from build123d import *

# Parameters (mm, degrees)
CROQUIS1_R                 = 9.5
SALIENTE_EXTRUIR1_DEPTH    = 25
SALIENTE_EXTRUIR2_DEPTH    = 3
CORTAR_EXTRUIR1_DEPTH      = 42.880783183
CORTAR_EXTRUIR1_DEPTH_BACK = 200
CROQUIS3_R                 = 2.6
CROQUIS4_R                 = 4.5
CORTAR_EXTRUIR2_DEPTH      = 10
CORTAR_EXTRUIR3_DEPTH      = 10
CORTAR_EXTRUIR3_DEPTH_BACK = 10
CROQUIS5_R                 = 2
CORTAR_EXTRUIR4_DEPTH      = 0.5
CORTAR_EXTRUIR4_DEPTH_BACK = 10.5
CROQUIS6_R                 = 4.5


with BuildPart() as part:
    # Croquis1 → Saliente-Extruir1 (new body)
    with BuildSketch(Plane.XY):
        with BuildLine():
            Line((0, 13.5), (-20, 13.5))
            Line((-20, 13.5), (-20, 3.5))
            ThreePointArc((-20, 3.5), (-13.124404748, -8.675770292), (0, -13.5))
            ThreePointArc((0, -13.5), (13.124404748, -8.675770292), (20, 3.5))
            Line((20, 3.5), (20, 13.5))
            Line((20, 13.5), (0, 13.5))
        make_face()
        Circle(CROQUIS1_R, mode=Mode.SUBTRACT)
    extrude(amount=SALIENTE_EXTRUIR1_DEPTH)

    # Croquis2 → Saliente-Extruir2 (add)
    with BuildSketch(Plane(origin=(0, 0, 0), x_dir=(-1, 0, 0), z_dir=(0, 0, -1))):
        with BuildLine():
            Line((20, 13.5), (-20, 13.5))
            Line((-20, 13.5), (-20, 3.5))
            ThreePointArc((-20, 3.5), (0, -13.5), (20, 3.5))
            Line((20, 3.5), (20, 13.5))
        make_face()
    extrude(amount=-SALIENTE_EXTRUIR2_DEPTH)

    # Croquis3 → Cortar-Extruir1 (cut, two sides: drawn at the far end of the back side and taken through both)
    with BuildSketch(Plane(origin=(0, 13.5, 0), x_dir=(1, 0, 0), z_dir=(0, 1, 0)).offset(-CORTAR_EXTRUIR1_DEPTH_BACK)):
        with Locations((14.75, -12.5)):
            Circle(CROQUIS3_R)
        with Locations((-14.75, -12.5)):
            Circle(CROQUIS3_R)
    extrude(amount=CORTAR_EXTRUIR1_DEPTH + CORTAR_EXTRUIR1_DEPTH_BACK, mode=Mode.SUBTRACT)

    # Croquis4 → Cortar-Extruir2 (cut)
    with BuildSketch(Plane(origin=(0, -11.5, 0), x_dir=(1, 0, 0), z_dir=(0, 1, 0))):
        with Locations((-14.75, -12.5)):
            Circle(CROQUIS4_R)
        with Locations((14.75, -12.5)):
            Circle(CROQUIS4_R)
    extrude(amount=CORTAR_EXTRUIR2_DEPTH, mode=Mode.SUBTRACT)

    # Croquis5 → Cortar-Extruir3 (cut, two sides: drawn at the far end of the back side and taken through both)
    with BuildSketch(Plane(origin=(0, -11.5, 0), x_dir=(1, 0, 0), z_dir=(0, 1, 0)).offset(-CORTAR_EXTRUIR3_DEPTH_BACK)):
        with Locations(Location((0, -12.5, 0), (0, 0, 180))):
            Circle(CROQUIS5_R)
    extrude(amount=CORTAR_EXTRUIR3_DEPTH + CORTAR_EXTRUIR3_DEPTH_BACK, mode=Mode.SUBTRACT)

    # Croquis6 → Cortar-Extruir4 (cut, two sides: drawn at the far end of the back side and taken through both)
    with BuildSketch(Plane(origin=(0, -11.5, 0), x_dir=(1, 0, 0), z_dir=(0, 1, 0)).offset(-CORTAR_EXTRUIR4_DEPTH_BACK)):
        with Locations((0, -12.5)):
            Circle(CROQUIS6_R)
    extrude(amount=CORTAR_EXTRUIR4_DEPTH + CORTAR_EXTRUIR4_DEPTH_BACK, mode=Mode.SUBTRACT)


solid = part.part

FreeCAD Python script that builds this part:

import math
import FreeCAD as App
import Part
import Sketcher
Q = App.Units.Quantity

doc = App.newDocument("Part")
body = doc.addObject("PartDesign::Body", "Body")

sketch1 = body.newObject("Sketcher::SketchObject", "Sketch")
sketch1.AttachmentSupport = (doc.getObject("XY_Plane"), [""])
sketch1.MapMode = "FlatFace"
sketch1.addGeometry([
    Part.LineSegment(App.Vector(-20, 14, 0), App.Vector(-20, 4, 0)),
    Part.ArcOfCircle(Part.Circle(App.Vector(0, 7, 0), App.Vector(0, 0, 1), 20), math.radians(-171), math.radians(-90)),
    Part.ArcOfCircle(Part.Circle(App.Vector(0, 7, 0), App.Vector(0, 0, 1), 20), math.radians(-90), math.radians(-9)),
    Part.LineSegment(App.Vector(20, 4, 0), App.Vector(20, 14, 0)),
    Part.LineSegment(App.Vector(20, 14, 0), App.Vector(-20, 14, 0)),
    Part.Circle(App.Vector(0, 0, 0), App.Vector(0, 0, 1), 10),
], False)
sketch1.addConstraint([
    Sketcher.Constraint("Coincident", 0, 2, 1, 1),
    Sketcher.Constraint("Tangent", 1, 2, 2, 1),
    Sketcher.Constraint("Coincident", 2, 2, 3, 1),
    Sketcher.Constraint("Coincident", 3, 2, 4, 1),
    Sketcher.Constraint("Coincident", 4, 2, 0, 1),
    Sketcher.Constraint("Vertical", 0),
    Sketcher.Constraint("Vertical", 3),
    Sketcher.Constraint("Horizontal", 4),
    Sketcher.Constraint("Coincident", 5, 3, -1, 1),
    Sketcher.Constraint("Equal", 1, 2),
    Sketcher.Constraint("Symmetric", 0, 2, 2, 2, -2),
    Sketcher.Constraint("PointOnObject", 1, 2, -2),
    Sketcher.Constraint("Diameter", 5, Q("19 mm")),
    Sketcher.Constraint("DistanceX", 4, 2, 4, 1, Q("40 mm")),
    Sketcher.Constraint("DistanceY", 0, 2, 0, 1, Q("10 mm")),
    Sketcher.Constraint("DistanceY", 1, 2, 0, 2, Q("17 mm")),
    Sketcher.Constraint("DistanceY", -1, 1, 0, 2, Q("3.5 mm")),
])
pad1 = body.newObject("PartDesign::Pad", "Pad")
pad1.Profile = sketch1
pad1.Length = 25

sketch2 = body.newObject("Sketcher::SketchObject", "Sketch001")
sketch2.AttachmentSupport = (doc.getObject("XY_Plane"), [""])
sketch2.MapMode = "FlatFace"
sketch2.addGeometry([
    Part.LineSegment(App.Vector(-20, 14, 0), App.Vector(20, 14, 0)),
    Part.LineSegment(App.Vector(20, 14, 0), App.Vector(20, 4, 0)),
    Part.ArcOfCircle(Part.Circle(App.Vector(0, 7, 0), App.Vector(0, 0, 1), 20), math.radians(-171), math.radians(-9)),
    Part.LineSegment(App.Vector(-20, 4, 0), App.Vector(-20, 14, 0)),
], False)
sketch2.addConstraint([
    Sketcher.Constraint("Coincident", 0, 2, 1, 1),
    Sketcher.Constraint("Coincident", 1, 2, 2, 2),
    Sketcher.Constraint("Coincident", 2, 1, 3, 1),
    Sketcher.Constraint("Coincident", 3, 2, 0, 1),
    Sketcher.Constraint("Horizontal", 0),
    Sketcher.Constraint("Vertical", 1),
    Sketcher.Constraint("Vertical", 3),
    Sketcher.Constraint("Symmetric", 1, 2, 2, 1, -2),
    Sketcher.Constraint("DistanceX", 0, 1, 0, 2, Q("40 mm")),
    Sketcher.Constraint("DistanceY", 1, 2, 1, 1, Q("10 mm")),
    Sketcher.Constraint("DistanceY", -1, 1, 0, 2, Q("13.5 mm")),
    Sketcher.Constraint("Radius", 2, Q("20.264706 mm")),
])
pad2 = body.newObject("PartDesign::Pad", "Pad001")
pad2.Profile = sketch2
pad2.Length = 3

sketch3 = body.newObject("Sketcher::SketchObject", "Sketch002")
sketch3.AttachmentSupport = (doc.getObject("XZ_Plane"), [""])
sketch3.MapMode = "FlatFace"
sketch3.AttachmentOffset = App.Placement(App.Vector(0, 0, -13.5), App.Rotation())
sketch3.addGeometry([
    Part.Circle(App.Vector(14.8, 12.5, 0), App.Vector(0, 0, 1), 2.6),
    Part.Circle(App.Vector(-14.8, 12.5, 0), App.Vector(0, 0, 1), 2.6),
], False)
sketch3.addConstraint([
    Sketcher.Constraint("Equal", 0, 1),
    Sketcher.Constraint("Symmetric", 0, 3, 1, 3, -2),
    Sketcher.Constraint("Diameter", 0, Q("5.2 mm")),
    Sketcher.Constraint("DistanceY", -1, 1, 0, 3, Q("12.5 mm")),
    Sketcher.Constraint("DistanceX", 1, 3, 0, 3, Q("29.5 mm")),
])
pocket1 = body.newObject("PartDesign::Pocket", "Pocket")
pocket1.Profile = sketch3
pocket1.Type = "ThroughAll"
pocket1.Midplane = True

sketch4 = body.newObject("Sketcher::SketchObject", "Sketch003")
sketch4.AttachmentSupport = (doc.getObject("XZ_Plane"), [""])
sketch4.MapMode = "FlatFace"
sketch4.AttachmentOffset = App.Placement(App.Vector(0, 0, 11.5), App.Rotation())
sketch4.addGeometry([
    Part.Circle(App.Vector(-14.8, 12.5, 0), App.Vector(0, 0, 1), 4.5),
    Part.Circle(App.Vector(14.8, 12.5, 0), App.Vector(0, 0, 1), 4.5),
], False)
sketch4.addConstraint([
    Sketcher.Constraint("Equal", 0, 1),
    Sketcher.Constraint("Symmetric", 0, 3, 1, 3, -2),
    Sketcher.Constraint("Diameter", 0, Q("9 mm")),
    Sketcher.Constraint("DistanceY", -1, 1, 0, 3, Q("12.5 mm")),
    Sketcher.Constraint("DistanceX", 0, 3, 1, 3, Q("29.5 mm")),
])
pocket2 = body.newObject("PartDesign::Pocket", "Pocket001")
pocket2.Profile = sketch4
pocket2.Length = 10

sketch5 = body.newObject("Sketcher::SketchObject", "Sketch004")
sketch5.AttachmentSupport = (doc.getObject("XZ_Plane"), [""])
sketch5.MapMode = "FlatFace"
sketch5.AttachmentOffset = App.Placement(App.Vector(0, 0, 11.5), App.Rotation())
sketch5.addGeometry(Part.Circle(App.Vector(0, 12.5, 0), App.Vector(0, 0, 1), 2), False)
sketch5.addConstraint([
    Sketcher.Constraint("PointOnObject", 0, 3, -2),
    Sketcher.Constraint("Diameter", 0, Q("4 mm")),
    Sketcher.Constraint("DistanceY", -1, 1, 0, 3, Q("12.5 mm")),
])
pocket3 = body.newObject("PartDesign::Pocket", "Pocket002")
pocket3.Profile = sketch5
pocket3.Type = "TwoLengths"
pocket3.Length = 10
pocket3.Length2 = 10

sketch6 = body.newObject("Sketcher::SketchObject", "Sketch005")
sketch6.AttachmentSupport = (doc.getObject("XZ_Plane"), [""])
sketch6.MapMode = "FlatFace"
sketch6.AttachmentOffset = App.Placement(App.Vector(0, 0, 11.5), App.Rotation())
sketch6.addGeometry(Part.Circle(App.Vector(0, 12.5, 0), App.Vector(0, 0, 1), 4.5), False)
sketch6.addConstraint([
    Sketcher.Constraint("PointOnObject", 0, 3, -2),
    Sketcher.Constraint("Diameter", 0, Q("9 mm")),
    Sketcher.Constraint("DistanceY", -1, 1, 0, 3, Q("12.5 mm")),
])
pocket4 = body.newObject("PartDesign::Pocket", "Pocket003")
pocket4.Profile = sketch6
pocket4.Type = "TwoLengths"
pocket4.Length = 0.5
pocket4.Length2 = 10.5

doc.recompute()
